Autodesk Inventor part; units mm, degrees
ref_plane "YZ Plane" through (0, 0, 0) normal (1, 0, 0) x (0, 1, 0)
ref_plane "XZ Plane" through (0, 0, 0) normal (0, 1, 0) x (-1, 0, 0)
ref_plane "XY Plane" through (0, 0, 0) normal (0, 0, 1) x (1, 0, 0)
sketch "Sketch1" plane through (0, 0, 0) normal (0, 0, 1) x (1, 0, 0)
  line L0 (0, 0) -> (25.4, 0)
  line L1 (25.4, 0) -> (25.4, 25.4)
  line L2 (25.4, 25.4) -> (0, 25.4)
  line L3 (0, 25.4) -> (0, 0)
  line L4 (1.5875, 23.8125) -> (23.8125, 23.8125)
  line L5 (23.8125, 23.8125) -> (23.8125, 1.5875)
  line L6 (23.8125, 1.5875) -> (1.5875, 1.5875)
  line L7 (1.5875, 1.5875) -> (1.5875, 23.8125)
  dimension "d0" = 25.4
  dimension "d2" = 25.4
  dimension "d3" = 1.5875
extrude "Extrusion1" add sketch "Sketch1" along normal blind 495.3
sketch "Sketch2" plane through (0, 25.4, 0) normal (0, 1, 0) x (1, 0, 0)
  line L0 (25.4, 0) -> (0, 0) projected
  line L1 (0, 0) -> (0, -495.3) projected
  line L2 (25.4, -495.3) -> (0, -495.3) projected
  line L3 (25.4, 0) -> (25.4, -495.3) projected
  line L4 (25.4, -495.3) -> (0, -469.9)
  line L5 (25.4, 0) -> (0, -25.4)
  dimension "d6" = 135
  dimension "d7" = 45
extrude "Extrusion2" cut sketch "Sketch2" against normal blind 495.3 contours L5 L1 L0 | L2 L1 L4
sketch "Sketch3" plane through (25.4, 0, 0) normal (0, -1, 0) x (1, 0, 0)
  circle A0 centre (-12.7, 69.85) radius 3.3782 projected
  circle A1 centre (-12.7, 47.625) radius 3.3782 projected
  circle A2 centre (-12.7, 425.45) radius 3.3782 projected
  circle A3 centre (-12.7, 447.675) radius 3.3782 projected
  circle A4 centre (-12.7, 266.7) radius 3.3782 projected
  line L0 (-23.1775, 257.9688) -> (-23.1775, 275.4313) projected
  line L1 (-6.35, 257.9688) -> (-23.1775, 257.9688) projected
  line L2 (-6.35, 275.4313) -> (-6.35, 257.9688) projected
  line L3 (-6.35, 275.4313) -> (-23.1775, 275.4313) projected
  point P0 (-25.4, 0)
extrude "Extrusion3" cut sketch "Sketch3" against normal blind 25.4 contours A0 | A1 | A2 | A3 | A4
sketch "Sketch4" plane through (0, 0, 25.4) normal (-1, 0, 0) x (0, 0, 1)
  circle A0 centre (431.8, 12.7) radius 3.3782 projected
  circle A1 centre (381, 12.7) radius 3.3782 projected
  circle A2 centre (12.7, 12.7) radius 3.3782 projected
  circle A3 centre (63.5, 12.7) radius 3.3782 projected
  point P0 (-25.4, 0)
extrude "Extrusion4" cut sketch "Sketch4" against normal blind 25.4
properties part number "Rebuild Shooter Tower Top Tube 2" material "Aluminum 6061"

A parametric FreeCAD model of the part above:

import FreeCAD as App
import Part
import Sketcher
Q = App.Units.Quantity


def add_polygon(sketch, points):
    """Adds a closed chain of lines whose ends are joined by coincident constraints."""
    first, n = sketch.GeometryCount, len(points)
    for a, b in zip(points, points[1:] + points[:1]):
        sketch.addGeometry(Part.LineSegment(App.Vector(*a, 0), App.Vector(*b, 0)), False)
    for i in range(n):
        sketch.addConstraint(Sketcher.Constraint("Coincident", first + i, 2, first + (i + 1) % n, 1))

doc = App.newDocument("Part")
params = doc.addObject("Spreadsheet::Sheet", "Params")
for row, (alias, value) in enumerate([
    ("sketch1_width", "1 in"),
    ("pad1_length", "19.5 in"),
    ("sketch2_width", "1 in"),
    ("pocket1_length", "19.5 in"),
    ("sketch3_diameter", "0.266 in"),
    ("pocket2_length", "1 in"),
    ("sketch4_diameter", "0.266 in"),
    ("pocket3_length", "1 in"),
], start=1):
    params.set(f"A{row}", alias)
    params.set(f"B{row}", "=" + value)
    params.setAlias(f"B{row}", alias)

body = doc.addObject("PartDesign::Body", "Body")

# Sketch on XY plane
sketch1 = body.newObject("Sketcher::SketchObject", "Sketch")
sketch1.AttachmentSupport = (doc.getObject("XY_Plane"), [""])
sketch1.MapMode = "FlatFace"
add_polygon(sketch1, [(0, 25.4), (0, 0), (25.4, 0), (25.4, 25.4)])  # lines 0-3
add_polygon(sketch1, [(1.5875, 1.5875), (1.5875, 23.8125), (23.8125, 23.8125), (23.8125, 1.5875)])  # lines 4-7
sketch1.addConstraint(Sketcher.Constraint("Vertical", 0))
sketch1.addConstraint(Sketcher.Constraint("Horizontal", 1))
sketch1.addConstraint(Sketcher.Constraint("Vertical", 2))
sketch1.addConstraint(Sketcher.Constraint("Horizontal", 3))
sketch1.addConstraint(Sketcher.Constraint("Vertical", 4))
sketch1.addConstraint(Sketcher.Constraint("Horizontal", 5))
sketch1.addConstraint(Sketcher.Constraint("Vertical", 6))
sketch1.addConstraint(Sketcher.Constraint("Horizontal", 7))
sketch1.addConstraint(Sketcher.Constraint("Coincident", 0, 2, -1, 1))
sketch1.addConstraint(Sketcher.Constraint("Equal", 3, 0))
sketch1.addConstraint(Sketcher.Constraint("Equal", 7, 4))
sketch1.addConstraint(Sketcher.Constraint("DistanceX", 1, 1, 1, 2, Q("1 in")))
sketch1.addConstraint(Sketcher.Constraint("DistanceX", -1, 1, 4, 2, Q("0.0625 in")))
sketch1.addConstraint(Sketcher.Constraint("DistanceY", -1, 1, 6, 2, Q("0.0625 in")))
sketch1.addConstraint(Sketcher.Constraint("DistanceY", 4, 2, 3, 2, Q("0.0625 in")))
sketch1.setExpression("Constraints[19]", "Params.sketch1_width")
pad1 = body.newObject("PartDesign::Pad", "Pad")
pad1.Profile = sketch1
pad1.setExpression("Length", "Params.pad1_length")

# Sketch on XZ plane
sketch2 = body.newObject("Sketcher::SketchObject", "Sketch001")
sketch2.AttachmentSupport = (doc.getObject("XZ_Plane"), [""])
sketch2.MapMode = "FlatFace"
sketch2.AttachmentOffset = App.Placement(App.Vector(0, 0, -1 * 25.4), App.Rotation())
add_polygon(sketch2, [(0, 25.4), (25.4, 0), (0, 0)])  # lines 0-2
add_polygon(sketch2, [(0, 495.3), (25.4, 495.3), (0, 469.9)])  # lines 3-5
sketch2.addConstraint(Sketcher.Constraint("Horizontal", 1))
sketch2.addConstraint(Sketcher.Constraint("Vertical", 2))
sketch2.addConstraint(Sketcher.Constraint("Horizontal", 3))
sketch2.addConstraint(Sketcher.Constraint("Vertical", 5))
sketch2.addConstraint(Sketcher.Constraint("Coincident", 1, 2, -1, 1))
sketch2.addConstraint(Sketcher.Constraint("PointOnObject", 4, 2, -2))
sketch2.addConstraint(Sketcher.Constraint("Perpendicular", 0, 4))
sketch2.addConstraint(Sketcher.Constraint("Vertical", 0, 2, 3, 2))
sketch2.addConstraint(Sketcher.Constraint("Equal", 3, 2))
sketch2.addConstraint(Sketcher.Constraint("DistanceX", 1, 2, 1, 1, Q("1 in")))
sketch2.addConstraint(Sketcher.Constraint("DistanceY", -1, 1, 3, 2, Q("19.5 in")))
sketch2.setExpression("Constraints[15]", "Params.sketch2_width")
pocket1 = body.newObject("PartDesign::Pocket", "Pocket")
pocket1.Profile = sketch2
pocket1.setExpression("Length", "Params.pocket1_length")
pocket1.Reversed = True

# Sketch on XZ plane
sketch3 = body.newObject("Sketcher::SketchObject", "Sketch002")
sketch3.AttachmentSupport = (doc.getObject("XZ_Plane"), [""])
sketch3.MapMode = "FlatFace"
sketch3.addGeometry(Part.Circle(App.Vector(12.7, 69.85, 0), App.Vector(0, 0, 1), 3.3782), False)
sketch3.addGeometry(Part.Circle(App.Vector(12.7, 47.625, 0), App.Vector(0, 0, 1), 3.3782), False)
sketch3.addGeometry(Part.Circle(App.Vector(12.7, 425.45, 0), App.Vector(0, 0, 1), 3.3782), False)
sketch3.addGeometry(Part.Circle(App.Vector(12.7, 447.675, 0), App.Vector(0, 0, 1), 3.3782), False)
sketch3.addGeometry(Part.Circle(App.Vector(12.7, 266.7, 0), App.Vector(0, 0, 1), 3.3782), False)
sketch3.addConstraint(Sketcher.Constraint("Equal", 0, 1))
sketch3.addConstraint(Sketcher.Constraint("Equal", 1, 2))
sketch3.addConstraint(Sketcher.Constraint("Equal", 2, 3))
sketch3.addConstraint(Sketcher.Constraint("Equal", 3, 4))
sketch3.addConstraint(Sketcher.Constraint("Vertical", 0, 3, 1, 3))
sketch3.addConstraint(Sketcher.Constraint("Vertical", 1, 3, 2, 3))
sketch3.addConstraint(Sketcher.Constraint("Vertical", 2, 3, 3, 3))
sketch3.addConstraint(Sketcher.Constraint("Vertical", 3, 3, 4, 3))
sketch3.addConstraint(Sketcher.Constraint("Diameter", 0, Q("0.266 in")))
sketch3.addConstraint(Sketcher.Constraint("DistanceY", 0, 3, 2, 3, Q("14 in")))
sketch3.addConstraint(Sketcher.Constraint("DistanceX", -1, 1, 0, 3, Q("0.5 in")))
sketch3.addConstraint(Sketcher.Constraint("DistanceY", -1, 1, 4, 3, Q("10.5 in")))
sketch3.addConstraint(Sketcher.Constraint("DistanceY", -1, 1, 0, 3, Q("2.75 in")))
sketch3.addConstraint(Sketcher.Constraint("DistanceY", 1, 3, 3, 3, Q("15.75 in")))
sketch3.addConstraint(Sketcher.Constraint("DistanceY", -1, 1, 1, 3, Q("1.875 in")))
sketch3.setExpression("Constraints[8]", "Params.sketch3_diameter")
pocket2 = body.newObject("PartDesign::Pocket", "Pocket001")
pocket2.Profile = sketch3
pocket2.setExpression("Length", "Params.pocket2_length")

# Sketch on YZ plane
sketch4 = body.newObject("Sketcher::SketchObject", "Sketch003")
sketch4.AttachmentSupport = (doc.getObject("YZ_Plane"), [""])
sketch4.MapMode = "FlatFace"
sketch4.addGeometry(Part.Circle(App.Vector(12.7, 457.2, 0), App.Vector(0, 0, 1), 3.3782), False)
sketch4.addGeometry(Part.Circle(App.Vector(12.7, 406.4, 0), App.Vector(0, 0, 1), 3.3782), False)
sketch4.addGeometry(Part.Circle(App.Vector(12.7, 38.1, 0), App.Vector(0, 0, 1), 3.3782), False)
sketch4.addGeometry(Part.Circle(App.Vector(12.7, 88.9, 0), App.Vector(0, 0, 1), 3.3782), False)
sketch4.addConstraint(Sketcher.Constraint("Equal", 0, 1))
sketch4.addConstraint(Sketcher.Constraint("Equal", 1, 2))
sketch4.addConstraint(Sketcher.Constraint("Equal", 2, 3))
sketch4.addConstraint(Sketcher.Constraint("Vertical", 0, 3, 1, 3))
sketch4.addConstraint(Sketcher.Constraint("Vertical", 1, 3, 2, 3))
sketch4.addConstraint(Sketcher.Constraint("Vertical", 2, 3, 3, 3))
sketch4.addConstraint(Sketcher.Constraint("Diameter", 0, Q("0.266 in")))
sketch4.addConstraint(Sketcher.Constraint("DistanceY", -1, 1, 0, 3, Q("18 in")))
sketch4.addConstraint(Sketcher.Constraint("DistanceY", -1, 1, 1, 3, Q("16 in")))
sketch4.addConstraint(Sketcher.Constraint("DistanceY", 2, 3, 3, 3, Q("2 in")))
sketch4.addConstraint(Sketcher.Constraint("DistanceX", -1, 1, 0, 3, Q("0.5 in")))
sketch4.addConstraint(Sketcher.Constraint("DistanceY", -1, 1, 2, 3, Q("1.5 in")))
sketch4.setExpression("Constraints[6]", "Params.sketch4_diameter")
pocket3 = body.newObject("PartDesign::Pocket", "Pocket002")
pocket3.Profile = sketch4
pocket3.setExpression("Length", "Params.pocket3_length")
pocket3.Reversed = True

doc.recompute()
